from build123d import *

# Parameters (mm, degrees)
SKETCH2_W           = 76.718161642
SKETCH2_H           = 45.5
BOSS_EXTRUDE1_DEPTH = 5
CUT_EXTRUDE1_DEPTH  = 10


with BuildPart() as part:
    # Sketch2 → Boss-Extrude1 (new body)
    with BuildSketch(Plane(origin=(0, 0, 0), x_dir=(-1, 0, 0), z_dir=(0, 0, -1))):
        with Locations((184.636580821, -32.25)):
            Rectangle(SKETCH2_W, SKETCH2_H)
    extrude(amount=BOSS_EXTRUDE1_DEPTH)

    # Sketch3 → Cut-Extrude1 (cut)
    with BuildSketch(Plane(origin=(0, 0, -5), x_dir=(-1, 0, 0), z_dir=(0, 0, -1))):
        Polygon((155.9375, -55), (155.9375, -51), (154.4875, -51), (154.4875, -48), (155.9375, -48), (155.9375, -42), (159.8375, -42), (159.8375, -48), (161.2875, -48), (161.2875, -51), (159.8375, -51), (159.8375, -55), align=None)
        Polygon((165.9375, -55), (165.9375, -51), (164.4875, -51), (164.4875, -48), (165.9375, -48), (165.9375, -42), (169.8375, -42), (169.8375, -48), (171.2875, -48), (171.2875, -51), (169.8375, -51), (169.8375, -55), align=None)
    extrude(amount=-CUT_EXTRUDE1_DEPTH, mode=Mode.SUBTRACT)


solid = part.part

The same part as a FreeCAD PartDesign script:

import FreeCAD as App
import Part
import Sketcher


def add_polygon(sketch, points):
    """Adds a closed chain of lines whose ends are joined by coincident constraints."""
    first, n = sketch.GeometryCount, len(points)
    for a, b in zip(points, points[1:] + points[:1]):
        sketch.addGeometry(Part.LineSegment(App.Vector(*a, 0), App.Vector(*b, 0)), False)
    for i in range(n):
        sketch.addConstraint(Sketcher.Constraint("Coincident", first + i, 2, first + (i + 1) % n, 1))

doc = App.newDocument("Part")
body = doc.addObject("PartDesign::Body", "Body")

sketch1 = body.newObject("Sketcher::SketchObject", "Sketch")
sketch1.AttachmentSupport = (doc.getObject("XY_Plane"), [""])
sketch1.MapMode = "FlatFace"
add_polygon(sketch1, [(-146, -10), (-146, -55), (-223, -55), (-223, -10)])
sketch1.addConstraint([
    Sketcher.Constraint("Vertical", 0),
    Sketcher.Constraint("Horizontal", 1),
    Sketcher.Constraint("Vertical", 2),
    Sketcher.Constraint("Horizontal", 3),
    Sketcher.Constraint("DistanceY", 0, 2, 0, 1, 45.5),
    Sketcher.Constraint("DistanceY", 0, 2, -1, 1, 55.0),
    Sketcher.Constraint("DistanceX", 1, 2, 1, 1, 76.718162),
    Sketcher.Constraint("DistanceX", 0, 2, -1, 1, 146.2775),
])
pad1 = body.newObject("PartDesign::Pad", "Pad")
pad1.Profile = sketch1
pad1.Length = 5
pad1.Reversed = True

sketch2 = body.newObject("Sketcher::SketchObject", "Sketch001")
sketch2.AttachmentSupport = (doc.getObject("XY_Plane"), [""])
sketch2.MapMode = "FlatFace"
sketch2.AttachmentOffset = App.Placement(App.Vector(0, 0, -5), App.Rotation())
add_polygon(sketch2, [(-155.9, -51), (-155.9, -55), (-159.8, -55), (-159.8, -51), (-161.3, -51), (-161.3, -48), (-159.8, -48), (-159.8, -42), (-155.9, -42), (-155.9, -48), (-154.5, -48), (-154.5, -51)])
add_polygon(sketch2, [(-165.9, -51), (-165.9, -55), (-169.8, -55), (-169.8, -51), (-171.3, -51), (-171.3, -48), (-169.8, -48), (-169.8, -42), (-165.9, -42), (-165.9, -48), (-164.5, -48), (-164.5, -51)])
sketch2.addConstraint([
    Sketcher.Constraint("Vertical", 0),
    Sketcher.Constraint("Horizontal", 1),
    Sketcher.Constraint("Vertical", 2),
    Sketcher.Constraint("Horizontal", 3),
    Sketcher.Constraint("Vertical", 4),
    Sketcher.Constraint("Horizontal", 5),
    Sketcher.Constraint("Vertical", 6),
    Sketcher.Constraint("Horizontal", 7),
    Sketcher.Constraint("Vertical", 8),
    Sketcher.Constraint("Horizontal", 9),
    Sketcher.Constraint("Vertical", 10),
    Sketcher.Constraint("Horizontal", 11),
    Sketcher.Constraint("Vertical", 12),
    Sketcher.Constraint("Horizontal", 13),
    Sketcher.Constraint("Vertical", 14),
    Sketcher.Constraint("Horizontal", 15),
    Sketcher.Constraint("Vertical", 16),
    Sketcher.Constraint("Horizontal", 17),
    Sketcher.Constraint("Vertical", 18),
    Sketcher.Constraint("Horizontal", 19),
    Sketcher.Constraint("Vertical", 20),
    Sketcher.Constraint("Horizontal", 21),
    Sketcher.Constraint("Vertical", 22),
    Sketcher.Constraint("Horizontal", 23),
    Sketcher.Constraint("Horizontal", 5, 2, 8, 2),
    Sketcher.Constraint("Horizontal", 3, 2, 10, 2),
    Sketcher.Constraint("Horizontal", 1, 2, 12, 2),
    Sketcher.Constraint("Horizontal", 11, 2, 14, 2),
    Sketcher.Constraint("Horizontal", 9, 2, 16, 2),
    Sketcher.Constraint("Horizontal", 7, 2, 18, 2),
    Sketcher.Constraint("Horizontal", 17, 2, 20, 2),
    Sketcher.Constraint("Horizontal", 15, 2, 22, 2),
    Sketcher.Constraint("Vertical", 2, 2, 5, 2),
    Sketcher.Constraint("Vertical", 0, 2, 7, 2),
    Sketcher.Constraint("Vertical", 14, 2, 17, 2),
    Sketcher.Constraint("Vertical", 12, 2, 19, 2),
    Sketcher.Constraint("Equal", 5, 9),
    Sketcher.Constraint("Equal", 7, 13),
    Sketcher.Constraint("Equal", 11, 15),
    Sketcher.Constraint("Equal", 17, 21),
    Sketcher.Constraint("DistanceY", 0, 2, 0, 1, 4.0),
    Sketcher.Constraint("DistanceY", 4, 1, 4, 2, 3.0),
    Sketcher.Constraint("DistanceY", 6, 1, 6, 2, 6.0),
    Sketcher.Constraint("DistanceX", 1, 2, 1, 1, 3.9),
    Sketcher.Constraint("DistanceY", 0, 2, -1, 1, 55.0),
    Sketcher.Constraint("DistanceX", 13, 2, 1, 2, 10.0),
    Sketcher.Constraint("DistanceX", 3, 2, 3, 1, 1.45),
    Sketcher.Constraint("DistanceX", 0, 2, -1, 1, 155.9375),
])
pocket1 = body.newObject("PartDesign::Pocket", "Pocket")
pocket1.Profile = sketch2
pocket1.Length = 10
pocket1.Reversed = True

doc.recompute()
